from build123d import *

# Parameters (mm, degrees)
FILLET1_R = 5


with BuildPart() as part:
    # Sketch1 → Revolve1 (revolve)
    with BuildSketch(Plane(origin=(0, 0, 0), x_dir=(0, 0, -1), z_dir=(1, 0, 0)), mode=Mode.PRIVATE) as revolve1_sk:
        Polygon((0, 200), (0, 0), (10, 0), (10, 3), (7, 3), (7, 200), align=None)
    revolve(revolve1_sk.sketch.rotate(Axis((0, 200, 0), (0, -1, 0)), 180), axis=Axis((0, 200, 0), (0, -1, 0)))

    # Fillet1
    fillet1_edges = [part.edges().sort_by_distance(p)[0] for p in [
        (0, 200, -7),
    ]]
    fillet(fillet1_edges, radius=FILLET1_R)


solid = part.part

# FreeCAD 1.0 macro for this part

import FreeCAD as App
import Part
import Sketcher

V = App.Vector
Q = App.Units.Quantity


def edges_at(feature, points):
    """Names of the edges that pass closest to the given points."""
    edges = feature.Shape.Edges
    near = lambda p: min(range(len(edges)), key=lambda i: edges[i].distToShape(Part.Vertex(*p))[0])
    return sorted({f"Edge{near(p) + 1}" for p in points})


def add_polygon(sketch, points):
    """Adds a closed chain of lines whose ends are joined by coincident constraints."""
    first, n = sketch.GeometryCount, len(points)
    for a, b in zip(points, points[1:] + points[:1]):
        sketch.addGeometry(Part.LineSegment(App.Vector(*a, 0), App.Vector(*b, 0)), False)
    for i in range(n):
        sketch.addConstraint(Sketcher.Constraint("Coincident", first + i, 2, first + (i + 1) % n, 1))

doc = App.newDocument("Part")
body = doc.addObject("PartDesign::Body", "Body")

sketch1 = doc.addObject("Sketcher::SketchObject", "Sketch")
body.addObject(sketch1)
sketch1.AttachmentSupport = (doc.YZ_Plane, [""])
sketch1.MapMode = "FlatFace"
add_polygon(sketch1, [(200, 0), (0, 0), (0, -10), (3, -10), (3, -7), (200, -7)])
sketch1.addConstraint(Sketcher.Constraint("Horizontal", 0))
sketch1.addConstraint(Sketcher.Constraint("Vertical", 1))
sketch1.addConstraint(Sketcher.Constraint("Horizontal", 2))
sketch1.addConstraint(Sketcher.Constraint("Vertical", 3))
sketch1.addConstraint(Sketcher.Constraint("Horizontal", 4))
sketch1.addConstraint(Sketcher.Constraint("Vertical", 5))
sketch1.addConstraint(Sketcher.Constraint("Coincident", 0, 2, -1, 1))
sketch1.addConstraint(Sketcher.Constraint("Equal", 2, 3))
sketch1.addConstraint(Sketcher.Constraint("DistanceX", 0, 2, 0, 1, Q("200 mm")))
sketch1.addConstraint(Sketcher.Constraint("DistanceX", 2, 1, 2, 2, Q("3 mm")))
sketch1.addConstraint(Sketcher.Constraint("DistanceY", 1, 2, 1, 1, Q("10 mm")))
revolution = doc.addObject("PartDesign::Revolution", "Revolution")
body.addObject(revolution)
revolution.Profile = sketch1
revolution.ReferenceAxis = (sketch1, ["H_Axis"])
revolution.Angle = 360
doc.recompute()

fillet = doc.addObject("PartDesign::Fillet", "Fillet")
body.addObject(fillet)
fillet.Base = (revolution, edges_at(revolution, [(0, 200, -7)]))
fillet.Radius = 5

doc.recompute()
